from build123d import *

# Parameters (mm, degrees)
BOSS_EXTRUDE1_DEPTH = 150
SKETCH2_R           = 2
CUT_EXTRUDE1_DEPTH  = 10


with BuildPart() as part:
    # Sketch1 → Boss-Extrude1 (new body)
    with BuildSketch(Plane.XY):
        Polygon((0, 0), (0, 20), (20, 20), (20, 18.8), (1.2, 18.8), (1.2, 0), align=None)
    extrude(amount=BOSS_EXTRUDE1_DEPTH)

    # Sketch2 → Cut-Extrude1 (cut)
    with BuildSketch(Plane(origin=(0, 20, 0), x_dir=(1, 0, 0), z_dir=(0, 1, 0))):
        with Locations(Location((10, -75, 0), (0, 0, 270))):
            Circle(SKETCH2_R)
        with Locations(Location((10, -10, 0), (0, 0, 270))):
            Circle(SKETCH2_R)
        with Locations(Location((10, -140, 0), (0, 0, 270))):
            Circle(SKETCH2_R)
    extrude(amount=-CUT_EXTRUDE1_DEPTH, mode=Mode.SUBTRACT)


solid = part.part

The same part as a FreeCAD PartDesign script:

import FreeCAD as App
import Part
import Sketcher

V = App.Vector

doc = App.newDocument("Part")
body = doc.addObject("PartDesign::Body", "Body")

sketch1 = body.newObject("Sketcher::SketchObject", "Sketch")
sketch1.AttachmentSupport = (doc.getObject("XY_Plane"), [""])
sketch1.MapMode = "FlatFace"
sketch1.addGeometry([
    Part.LineSegment(V(0, 20, 0), V(0, 0, 0)),
    Part.LineSegment(V(0, 0, 0), V(1.2, 0, 0)),
    Part.LineSegment(V(1.2, 0, 0), V(1.2, 18.8, 0)),
    Part.LineSegment(V(1.2, 18.8, 0), V(20, 18.8, 0)),
    Part.LineSegment(V(20, 18.8, 0), V(20, 20, 0)),
    Part.LineSegment(V(20, 20, 0), V(0, 20, 0)),
], False)
sketch1.addConstraint([
    Sketcher.Constraint("Coincident", 0, 2, 1, 1),
    Sketcher.Constraint("Coincident", 1, 2, 2, 1),
    Sketcher.Constraint("Coincident", 2, 2, 3, 1),
    Sketcher.Constraint("Coincident", 3, 2, 4, 1),
    Sketcher.Constraint("Coincident", 4, 2, 5, 1),
    Sketcher.Constraint("Coincident", 5, 2, 0, 1),
    Sketcher.Constraint("Vertical", 0),
    Sketcher.Constraint("Horizontal", 1),
    Sketcher.Constraint("Vertical", 2),
    Sketcher.Constraint("Horizontal", 3),
    Sketcher.Constraint("Vertical", 4),
    Sketcher.Constraint("Horizontal", 5),
    Sketcher.Constraint("Coincident", 0, 2, -1, 1),
    Sketcher.Constraint("Equal", 5, 0),
    Sketcher.Constraint("Equal", 3, 2),
    Sketcher.Constraint("DistanceX", 5, 2, 5, 1, 20.0),
    Sketcher.Constraint("DistanceX", 1, 1, 1, 2, 1.2),
])
pad1 = body.newObject("PartDesign::Pad", "Pad")
pad1.Profile = sketch1
pad1.Length = 150

sketch2 = body.newObject("Sketcher::SketchObject", "Sketch001")
sketch2.AttachmentSupport = (doc.getObject("XZ_Plane"), [""])
sketch2.MapMode = "FlatFace"
sketch2.AttachmentOffset = App.Placement(V(0, 0, -20), App.Rotation())
sketch2.addGeometry([
    Part.Circle(V(10, 75, 0), V(0, 0, 1), 2),
    Part.Circle(V(10, 10, 0), V(0, 0, 1), 2),
    Part.Circle(V(10, 140, 0), V(0, 0, 1), 2),
], False)
sketch2.addConstraint([
    Sketcher.Constraint("Equal", 0, 1),
    Sketcher.Constraint("Equal", 1, 2),
    Sketcher.Constraint("Vertical", 0, 3, 1, 3),
    Sketcher.Constraint("Vertical", 1, 3, 2, 3),
    Sketcher.Constraint("Diameter", 0, 4.0),
    Sketcher.Constraint("DistanceX", -1, 1, 0, 3, 10.0),
    Sketcher.Constraint("DistanceY", -1, 1, 0, 3, 75.0),
    Sketcher.Constraint("DistanceY", -1, 1, 1, 3, 10.0),
    Sketcher.Constraint("DistanceY", -1, 1, 2, 3, 140.0),
])
pocket1 = body.newObject("PartDesign::Pocket", "Pocket")
pocket1.Profile = sketch2
pocket1.Length = 10
pocket1.Reversed = True

doc.recompute()
